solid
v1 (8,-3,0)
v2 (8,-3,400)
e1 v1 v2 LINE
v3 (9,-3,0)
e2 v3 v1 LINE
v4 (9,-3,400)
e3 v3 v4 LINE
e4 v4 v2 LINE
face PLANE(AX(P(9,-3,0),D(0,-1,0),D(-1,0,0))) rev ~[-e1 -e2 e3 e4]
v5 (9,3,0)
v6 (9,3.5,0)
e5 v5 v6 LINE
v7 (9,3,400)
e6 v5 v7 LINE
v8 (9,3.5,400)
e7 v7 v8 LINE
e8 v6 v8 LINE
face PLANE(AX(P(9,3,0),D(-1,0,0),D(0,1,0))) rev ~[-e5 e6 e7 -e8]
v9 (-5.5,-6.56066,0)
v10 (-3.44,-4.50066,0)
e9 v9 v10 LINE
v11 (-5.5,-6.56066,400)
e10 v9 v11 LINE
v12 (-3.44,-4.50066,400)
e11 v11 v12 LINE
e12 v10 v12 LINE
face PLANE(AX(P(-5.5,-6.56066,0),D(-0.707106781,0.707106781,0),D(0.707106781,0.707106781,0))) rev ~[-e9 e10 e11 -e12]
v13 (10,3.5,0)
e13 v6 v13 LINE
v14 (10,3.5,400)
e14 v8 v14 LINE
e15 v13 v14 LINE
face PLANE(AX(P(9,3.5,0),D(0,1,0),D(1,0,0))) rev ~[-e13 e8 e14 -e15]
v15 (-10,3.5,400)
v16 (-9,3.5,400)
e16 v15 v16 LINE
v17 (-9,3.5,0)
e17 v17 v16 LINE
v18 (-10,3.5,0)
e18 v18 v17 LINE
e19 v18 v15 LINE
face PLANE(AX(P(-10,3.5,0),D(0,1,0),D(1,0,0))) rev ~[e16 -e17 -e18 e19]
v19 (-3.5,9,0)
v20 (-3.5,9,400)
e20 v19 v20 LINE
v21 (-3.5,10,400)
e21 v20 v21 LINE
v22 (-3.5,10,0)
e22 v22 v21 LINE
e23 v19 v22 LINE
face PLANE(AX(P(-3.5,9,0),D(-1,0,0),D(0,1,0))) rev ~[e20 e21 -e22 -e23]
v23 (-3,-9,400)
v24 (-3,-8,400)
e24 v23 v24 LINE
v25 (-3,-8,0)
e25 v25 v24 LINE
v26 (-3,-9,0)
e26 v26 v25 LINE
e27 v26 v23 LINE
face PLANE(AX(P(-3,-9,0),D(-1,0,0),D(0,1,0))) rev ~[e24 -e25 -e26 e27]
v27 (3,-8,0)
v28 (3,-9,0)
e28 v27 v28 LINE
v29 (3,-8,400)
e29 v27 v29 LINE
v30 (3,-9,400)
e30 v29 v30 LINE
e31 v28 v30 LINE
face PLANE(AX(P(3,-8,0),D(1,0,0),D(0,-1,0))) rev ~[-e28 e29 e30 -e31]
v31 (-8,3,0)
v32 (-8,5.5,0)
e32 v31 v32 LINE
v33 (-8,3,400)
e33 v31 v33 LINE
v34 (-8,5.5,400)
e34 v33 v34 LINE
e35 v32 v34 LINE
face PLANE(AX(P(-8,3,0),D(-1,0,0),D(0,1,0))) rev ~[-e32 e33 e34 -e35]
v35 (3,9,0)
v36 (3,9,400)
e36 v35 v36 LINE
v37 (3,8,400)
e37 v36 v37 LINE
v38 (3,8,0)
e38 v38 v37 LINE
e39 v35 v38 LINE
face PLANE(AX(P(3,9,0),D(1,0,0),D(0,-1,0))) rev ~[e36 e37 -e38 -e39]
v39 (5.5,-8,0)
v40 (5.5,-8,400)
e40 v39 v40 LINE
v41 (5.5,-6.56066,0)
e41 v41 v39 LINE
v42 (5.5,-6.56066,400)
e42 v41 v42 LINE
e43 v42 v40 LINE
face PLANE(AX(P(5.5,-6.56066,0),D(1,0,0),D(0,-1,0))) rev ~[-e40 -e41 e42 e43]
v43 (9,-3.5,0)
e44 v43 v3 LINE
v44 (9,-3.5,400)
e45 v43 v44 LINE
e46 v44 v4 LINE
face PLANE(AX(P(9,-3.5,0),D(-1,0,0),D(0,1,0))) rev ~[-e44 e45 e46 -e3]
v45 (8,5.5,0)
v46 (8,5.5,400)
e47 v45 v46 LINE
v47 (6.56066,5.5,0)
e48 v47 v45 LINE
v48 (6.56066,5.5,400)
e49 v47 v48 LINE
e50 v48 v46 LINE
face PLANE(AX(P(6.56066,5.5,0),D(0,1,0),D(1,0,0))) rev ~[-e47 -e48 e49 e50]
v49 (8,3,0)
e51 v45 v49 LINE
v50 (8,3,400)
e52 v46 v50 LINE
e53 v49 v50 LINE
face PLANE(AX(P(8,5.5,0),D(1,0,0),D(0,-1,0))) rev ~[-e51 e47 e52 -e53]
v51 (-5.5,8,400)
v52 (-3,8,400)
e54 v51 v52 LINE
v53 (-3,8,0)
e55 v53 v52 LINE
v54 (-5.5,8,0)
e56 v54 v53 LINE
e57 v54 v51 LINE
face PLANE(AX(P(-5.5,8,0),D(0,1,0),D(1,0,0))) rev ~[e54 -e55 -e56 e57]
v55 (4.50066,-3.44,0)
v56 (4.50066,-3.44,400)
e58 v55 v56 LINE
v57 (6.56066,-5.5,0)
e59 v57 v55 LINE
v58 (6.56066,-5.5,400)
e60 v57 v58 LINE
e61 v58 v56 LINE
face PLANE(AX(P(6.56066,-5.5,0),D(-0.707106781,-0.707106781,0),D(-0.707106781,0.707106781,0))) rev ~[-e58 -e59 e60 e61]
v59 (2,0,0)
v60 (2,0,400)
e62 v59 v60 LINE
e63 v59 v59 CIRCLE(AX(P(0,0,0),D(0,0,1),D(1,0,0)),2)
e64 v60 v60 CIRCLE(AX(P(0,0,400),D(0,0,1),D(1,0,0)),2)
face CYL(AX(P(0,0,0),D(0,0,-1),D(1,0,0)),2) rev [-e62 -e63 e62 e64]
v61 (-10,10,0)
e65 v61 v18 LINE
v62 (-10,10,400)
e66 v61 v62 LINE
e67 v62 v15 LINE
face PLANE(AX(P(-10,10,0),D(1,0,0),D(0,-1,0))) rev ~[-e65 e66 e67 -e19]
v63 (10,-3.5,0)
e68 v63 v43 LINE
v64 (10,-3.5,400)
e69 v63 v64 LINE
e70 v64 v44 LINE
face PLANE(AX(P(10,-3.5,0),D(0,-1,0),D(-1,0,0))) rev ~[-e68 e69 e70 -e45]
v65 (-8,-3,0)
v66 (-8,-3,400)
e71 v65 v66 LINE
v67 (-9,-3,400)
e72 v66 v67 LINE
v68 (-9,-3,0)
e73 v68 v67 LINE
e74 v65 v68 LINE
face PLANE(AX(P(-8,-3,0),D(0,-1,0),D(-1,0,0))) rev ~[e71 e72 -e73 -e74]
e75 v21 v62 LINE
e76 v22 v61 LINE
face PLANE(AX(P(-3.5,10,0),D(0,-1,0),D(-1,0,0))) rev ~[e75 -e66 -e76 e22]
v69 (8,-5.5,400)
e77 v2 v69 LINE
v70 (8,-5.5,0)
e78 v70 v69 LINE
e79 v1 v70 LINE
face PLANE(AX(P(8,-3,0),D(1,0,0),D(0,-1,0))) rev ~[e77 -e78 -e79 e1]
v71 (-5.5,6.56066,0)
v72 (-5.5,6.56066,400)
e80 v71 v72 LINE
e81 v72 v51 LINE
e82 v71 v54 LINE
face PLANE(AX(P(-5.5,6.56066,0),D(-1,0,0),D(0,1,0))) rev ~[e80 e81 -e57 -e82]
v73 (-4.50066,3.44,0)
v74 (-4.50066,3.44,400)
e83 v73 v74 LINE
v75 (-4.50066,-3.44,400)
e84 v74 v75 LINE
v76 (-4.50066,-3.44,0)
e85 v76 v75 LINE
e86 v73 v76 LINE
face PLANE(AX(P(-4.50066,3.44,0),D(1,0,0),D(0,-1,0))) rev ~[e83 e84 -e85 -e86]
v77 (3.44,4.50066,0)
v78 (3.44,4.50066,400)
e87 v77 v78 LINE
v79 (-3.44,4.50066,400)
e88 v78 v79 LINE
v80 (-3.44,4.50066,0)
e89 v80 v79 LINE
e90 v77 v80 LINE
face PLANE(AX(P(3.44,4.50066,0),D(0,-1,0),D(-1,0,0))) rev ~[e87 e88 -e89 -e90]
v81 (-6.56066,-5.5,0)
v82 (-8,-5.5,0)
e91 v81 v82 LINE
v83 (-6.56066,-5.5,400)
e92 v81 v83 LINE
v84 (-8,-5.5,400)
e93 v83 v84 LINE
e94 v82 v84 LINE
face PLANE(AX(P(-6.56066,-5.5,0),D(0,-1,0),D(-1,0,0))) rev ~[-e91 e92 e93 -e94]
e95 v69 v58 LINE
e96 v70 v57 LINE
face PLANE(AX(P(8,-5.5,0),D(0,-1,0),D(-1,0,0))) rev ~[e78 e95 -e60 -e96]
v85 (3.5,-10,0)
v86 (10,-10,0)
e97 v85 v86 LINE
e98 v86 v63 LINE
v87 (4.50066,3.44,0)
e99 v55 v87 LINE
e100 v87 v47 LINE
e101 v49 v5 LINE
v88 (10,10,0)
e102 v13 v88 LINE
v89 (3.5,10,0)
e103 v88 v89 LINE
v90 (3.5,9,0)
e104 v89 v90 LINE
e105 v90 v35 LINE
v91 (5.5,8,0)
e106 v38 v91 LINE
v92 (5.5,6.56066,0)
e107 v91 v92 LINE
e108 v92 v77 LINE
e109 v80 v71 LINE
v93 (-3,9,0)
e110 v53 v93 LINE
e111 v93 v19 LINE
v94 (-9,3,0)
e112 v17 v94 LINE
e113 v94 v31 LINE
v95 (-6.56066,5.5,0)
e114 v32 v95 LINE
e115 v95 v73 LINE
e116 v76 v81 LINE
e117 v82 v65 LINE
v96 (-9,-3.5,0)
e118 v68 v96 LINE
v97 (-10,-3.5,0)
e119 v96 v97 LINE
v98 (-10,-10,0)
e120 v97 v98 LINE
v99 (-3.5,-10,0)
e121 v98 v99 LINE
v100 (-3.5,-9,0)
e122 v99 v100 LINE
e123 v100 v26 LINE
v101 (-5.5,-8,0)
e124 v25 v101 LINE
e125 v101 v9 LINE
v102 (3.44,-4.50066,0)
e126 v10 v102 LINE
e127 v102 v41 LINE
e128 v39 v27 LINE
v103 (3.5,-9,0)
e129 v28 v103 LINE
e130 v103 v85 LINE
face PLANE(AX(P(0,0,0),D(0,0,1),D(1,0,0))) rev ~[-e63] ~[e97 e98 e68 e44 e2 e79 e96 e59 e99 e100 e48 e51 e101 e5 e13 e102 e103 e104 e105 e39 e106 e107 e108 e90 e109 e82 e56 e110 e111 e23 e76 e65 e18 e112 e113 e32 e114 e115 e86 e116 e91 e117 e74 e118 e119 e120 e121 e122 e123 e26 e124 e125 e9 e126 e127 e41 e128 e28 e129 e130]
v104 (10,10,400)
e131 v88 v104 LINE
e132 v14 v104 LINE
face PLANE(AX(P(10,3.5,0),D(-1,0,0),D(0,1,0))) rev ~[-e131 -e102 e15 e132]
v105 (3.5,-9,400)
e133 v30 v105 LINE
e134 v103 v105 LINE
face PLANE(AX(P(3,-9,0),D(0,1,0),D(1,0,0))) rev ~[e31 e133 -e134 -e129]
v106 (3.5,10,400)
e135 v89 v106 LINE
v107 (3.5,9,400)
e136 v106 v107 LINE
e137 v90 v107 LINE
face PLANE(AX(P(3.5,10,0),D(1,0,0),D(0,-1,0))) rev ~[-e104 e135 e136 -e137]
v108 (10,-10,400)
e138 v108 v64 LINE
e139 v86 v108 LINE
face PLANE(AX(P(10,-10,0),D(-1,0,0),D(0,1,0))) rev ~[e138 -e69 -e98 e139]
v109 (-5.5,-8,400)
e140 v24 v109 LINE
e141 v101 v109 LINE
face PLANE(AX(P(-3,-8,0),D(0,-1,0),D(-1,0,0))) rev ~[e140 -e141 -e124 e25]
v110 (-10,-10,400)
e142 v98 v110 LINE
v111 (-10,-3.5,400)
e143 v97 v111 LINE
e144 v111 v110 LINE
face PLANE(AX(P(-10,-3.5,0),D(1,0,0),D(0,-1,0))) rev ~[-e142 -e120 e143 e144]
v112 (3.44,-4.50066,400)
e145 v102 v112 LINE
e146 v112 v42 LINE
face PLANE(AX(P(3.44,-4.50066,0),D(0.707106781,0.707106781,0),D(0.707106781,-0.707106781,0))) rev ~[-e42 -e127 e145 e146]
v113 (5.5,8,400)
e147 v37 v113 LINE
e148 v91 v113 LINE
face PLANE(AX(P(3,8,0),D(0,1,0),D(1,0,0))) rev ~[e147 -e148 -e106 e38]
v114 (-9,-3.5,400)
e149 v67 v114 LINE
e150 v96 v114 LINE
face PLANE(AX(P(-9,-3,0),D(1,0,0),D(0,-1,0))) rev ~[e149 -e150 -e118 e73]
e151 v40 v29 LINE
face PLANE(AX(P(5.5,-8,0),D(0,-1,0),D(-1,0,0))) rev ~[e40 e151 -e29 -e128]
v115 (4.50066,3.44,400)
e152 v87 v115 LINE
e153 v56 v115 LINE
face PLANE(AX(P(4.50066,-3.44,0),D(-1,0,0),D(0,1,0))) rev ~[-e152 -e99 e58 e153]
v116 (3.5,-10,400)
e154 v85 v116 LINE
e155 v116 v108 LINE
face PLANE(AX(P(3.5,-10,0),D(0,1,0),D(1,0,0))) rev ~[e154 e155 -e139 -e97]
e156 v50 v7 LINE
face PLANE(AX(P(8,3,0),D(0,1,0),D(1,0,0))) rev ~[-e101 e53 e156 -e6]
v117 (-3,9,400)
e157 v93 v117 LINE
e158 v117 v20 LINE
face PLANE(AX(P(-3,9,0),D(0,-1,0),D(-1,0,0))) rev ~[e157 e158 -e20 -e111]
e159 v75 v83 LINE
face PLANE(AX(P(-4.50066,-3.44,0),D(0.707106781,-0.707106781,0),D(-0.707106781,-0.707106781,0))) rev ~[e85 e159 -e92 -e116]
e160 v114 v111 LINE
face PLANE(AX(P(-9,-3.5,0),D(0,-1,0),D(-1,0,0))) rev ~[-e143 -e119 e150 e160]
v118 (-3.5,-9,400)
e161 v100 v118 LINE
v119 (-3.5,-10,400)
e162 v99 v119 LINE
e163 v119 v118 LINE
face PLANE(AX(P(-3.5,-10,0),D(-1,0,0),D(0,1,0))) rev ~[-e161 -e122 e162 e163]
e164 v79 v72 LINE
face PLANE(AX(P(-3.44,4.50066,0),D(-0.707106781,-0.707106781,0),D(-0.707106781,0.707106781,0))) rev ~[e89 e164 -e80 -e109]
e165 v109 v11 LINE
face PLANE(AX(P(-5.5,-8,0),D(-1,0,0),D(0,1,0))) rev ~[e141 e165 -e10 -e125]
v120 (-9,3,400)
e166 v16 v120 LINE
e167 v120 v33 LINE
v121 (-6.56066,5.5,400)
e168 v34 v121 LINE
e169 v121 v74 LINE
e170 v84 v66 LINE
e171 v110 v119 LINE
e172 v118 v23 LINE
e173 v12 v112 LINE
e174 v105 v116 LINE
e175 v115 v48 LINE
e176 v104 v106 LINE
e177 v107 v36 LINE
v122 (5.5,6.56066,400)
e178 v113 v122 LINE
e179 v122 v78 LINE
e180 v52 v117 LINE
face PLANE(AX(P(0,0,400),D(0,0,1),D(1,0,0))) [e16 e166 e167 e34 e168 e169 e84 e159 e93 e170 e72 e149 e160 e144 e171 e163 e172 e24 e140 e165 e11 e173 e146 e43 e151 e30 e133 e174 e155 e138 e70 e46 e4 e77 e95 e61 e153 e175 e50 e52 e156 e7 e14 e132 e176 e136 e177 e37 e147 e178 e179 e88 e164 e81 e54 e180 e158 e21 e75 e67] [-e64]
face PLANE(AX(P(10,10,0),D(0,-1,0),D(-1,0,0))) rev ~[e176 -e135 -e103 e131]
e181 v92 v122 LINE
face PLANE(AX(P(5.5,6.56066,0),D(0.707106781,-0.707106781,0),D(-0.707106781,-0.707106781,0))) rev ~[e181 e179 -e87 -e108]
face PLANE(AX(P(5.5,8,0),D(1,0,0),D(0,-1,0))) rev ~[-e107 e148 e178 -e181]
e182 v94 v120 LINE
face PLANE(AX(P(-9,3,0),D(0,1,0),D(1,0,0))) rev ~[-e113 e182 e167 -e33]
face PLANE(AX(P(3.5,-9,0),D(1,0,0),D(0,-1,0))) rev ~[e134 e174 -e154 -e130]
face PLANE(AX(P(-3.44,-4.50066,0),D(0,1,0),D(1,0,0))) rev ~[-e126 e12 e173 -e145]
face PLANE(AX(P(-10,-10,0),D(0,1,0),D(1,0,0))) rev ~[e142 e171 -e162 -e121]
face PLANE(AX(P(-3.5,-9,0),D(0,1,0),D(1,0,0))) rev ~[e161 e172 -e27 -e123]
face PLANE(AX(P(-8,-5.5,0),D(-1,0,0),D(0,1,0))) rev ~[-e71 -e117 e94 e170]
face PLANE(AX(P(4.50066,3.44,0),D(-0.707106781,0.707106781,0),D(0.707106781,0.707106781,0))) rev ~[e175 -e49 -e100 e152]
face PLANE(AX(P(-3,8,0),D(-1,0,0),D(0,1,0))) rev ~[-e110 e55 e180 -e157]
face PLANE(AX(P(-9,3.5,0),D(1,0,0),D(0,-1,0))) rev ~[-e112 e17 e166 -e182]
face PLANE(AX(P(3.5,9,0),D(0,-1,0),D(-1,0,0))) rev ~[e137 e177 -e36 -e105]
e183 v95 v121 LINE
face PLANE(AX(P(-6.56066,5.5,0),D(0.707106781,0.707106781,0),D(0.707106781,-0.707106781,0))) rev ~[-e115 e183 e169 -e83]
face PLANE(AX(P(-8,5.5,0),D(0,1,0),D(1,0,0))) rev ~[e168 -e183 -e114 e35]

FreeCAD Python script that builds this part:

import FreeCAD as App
import Part
import Sketcher

V = App.Vector
Q = App.Units.Quantity


def add_polygon(sketch, points):
    """Adds a closed chain of lines whose ends are joined by coincident constraints."""
    first, n = sketch.GeometryCount, len(points)
    for a, b in zip(points, points[1:] + points[:1]):
        sketch.addGeometry(Part.LineSegment(App.Vector(*a, 0), App.Vector(*b, 0)), False)
    for i in range(n):
        sketch.addConstraint(Sketcher.Constraint("Coincident", first + i, 2, first + (i + 1) % n, 1))

doc = App.newDocument("Part")
body = doc.addObject("PartDesign::Body", "Body")

# Sketch on XY plane
sketch1 = body.newObject("Sketcher::SketchObject", "Sketch")
sketch1.AttachmentSupport = (doc.getObject("XY_Plane"), [""])
sketch1.MapMode = "FlatFace"
add_polygon(sketch1, [(-10, -10), (-3.5, -10), (-3.5, -9), (-3, -9), (-3, -8), (-5.5, -8), (-5.5, -6.6), (-3.4, -4.5), (3.4, -4.5), (5.5, -6.6), (5.5, -8), (3, -8), (3, -9), (3.5, -9), (3.5, -10), (10, -10), (10, -3.5), (9, -3.5), (9, -3), (8, -3), (8, -5.5), (6.6, -5.5), (4.5, -3.4), (4.5, 3.4), (6.6, 5.5), (8, 5.5), (8, 3), (9, 3), (9, 3.5), (10, 3.5), (10, 10), (3.5, 10), (3.5, 9), (3, 9), (3, 8), (5.5, 8), (5.5, 6.6), (3.4, 4.5), (-3.4, 4.5), (-5.5, 6.6), (-5.5, 8), (-3, 8), (-3, 9), (-3.5, 9), (-3.5, 10), (-10, 10), (-10, 3.5), (-9, 3.5), (-9, 3), (-8, 3), (-8, 5.5), (-6.6, 5.5), (-4.5, 3.4), (-4.5, -3.4), (-6.6, -5.5), (-8, -5.5), (-8, -3), (-9, -3), (-9, -3.5), (-10, -3.5)])  # lines 0-59
sketch1.addGeometry(Part.Circle(V(0, 0, 0), V(0, 0, 1), 2), False)  # 60
sketch1.addConstraint(Sketcher.Constraint("Horizontal", 0))
sketch1.addConstraint(Sketcher.Constraint("Vertical", 1))
sketch1.addConstraint(Sketcher.Constraint("Horizontal", 2))
sketch1.addConstraint(Sketcher.Constraint("Vertical", 3))
sketch1.addConstraint(Sketcher.Constraint("Horizontal", 4))
sketch1.addConstraint(Sketcher.Constraint("Vertical", 5))
sketch1.addConstraint(Sketcher.Constraint("Horizontal", 7))
sketch1.addConstraint(Sketcher.Constraint("Vertical", 9))
sketch1.addConstraint(Sketcher.Constraint("Horizontal", 10))
sketch1.addConstraint(Sketcher.Constraint("Vertical", 11))
sketch1.addConstraint(Sketcher.Constraint("Horizontal", 12))
sketch1.addConstraint(Sketcher.Constraint("Vertical", 13))
sketch1.addConstraint(Sketcher.Constraint("Horizontal", 14))
sketch1.addConstraint(Sketcher.Constraint("Vertical", 15))
sketch1.addConstraint(Sketcher.Constraint("Horizontal", 16))
sketch1.addConstraint(Sketcher.Constraint("Vertical", 17))
sketch1.addConstraint(Sketcher.Constraint("Horizontal", 18))
sketch1.addConstraint(Sketcher.Constraint("Vertical", 19))
sketch1.addConstraint(Sketcher.Constraint("Horizontal", 20))
sketch1.addConstraint(Sketcher.Constraint("Vertical", 22))
sketch1.addConstraint(Sketcher.Constraint("Horizontal", 24))
sketch1.addConstraint(Sketcher.Constraint("Vertical", 25))
sketch1.addConstraint(Sketcher.Constraint("Horizontal", 26))
sketch1.addConstraint(Sketcher.Constraint("Vertical", 27))
sketch1.addConstraint(Sketcher.Constraint("Horizontal", 28))
sketch1.addConstraint(Sketcher.Constraint("Vertical", 29))
sketch1.addConstraint(Sketcher.Constraint("Horizontal", 30))
sketch1.addConstraint(Sketcher.Constraint("Vertical", 31))
sketch1.addConstraint(Sketcher.Constraint("Horizontal", 32))
sketch1.addConstraint(Sketcher.Constraint("Vertical", 33))
sketch1.addConstraint(Sketcher.Constraint("Horizontal", 34))
sketch1.addConstraint(Sketcher.Constraint("Vertical", 35))
sketch1.addConstraint(Sketcher.Constraint("Horizontal", 37))
sketch1.addConstraint(Sketcher.Constraint("Vertical", 39))
sketch1.addConstraint(Sketcher.Constraint("Horizontal", 40))
sketch1.addConstraint(Sketcher.Constraint("Vertical", 41))
sketch1.addConstraint(Sketcher.Constraint("Horizontal", 42))
sketch1.addConstraint(Sketcher.Constraint("Vertical", 43))
sketch1.addConstraint(Sketcher.Constraint("Horizontal", 44))
sketch1.addConstraint(Sketcher.Constraint("Vertical", 45))
sketch1.addConstraint(Sketcher.Constraint("Horizontal", 46))
sketch1.addConstraint(Sketcher.Constraint("Vertical", 47))
sketch1.addConstraint(Sketcher.Constraint("Horizontal", 48))
sketch1.addConstraint(Sketcher.Constraint("Vertical", 49))
sketch1.addConstraint(Sketcher.Constraint("Horizontal", 50))
sketch1.addConstraint(Sketcher.Constraint("Vertical", 52))
sketch1.addConstraint(Sketcher.Constraint("Horizontal", 54))
sketch1.addConstraint(Sketcher.Constraint("Vertical", 55))
sketch1.addConstraint(Sketcher.Constraint("Horizontal", 56))
sketch1.addConstraint(Sketcher.Constraint("Vertical", 57))
sketch1.addConstraint(Sketcher.Constraint("Horizontal", 58))
sketch1.addConstraint(Sketcher.Constraint("Vertical", 59))
sketch1.addConstraint(Sketcher.Constraint("Coincident", 60, 3, -1, 1))
sketch1.addConstraint(Sketcher.Constraint("Symmetric", 0, 2, 30, 2, -1, 1))
sketch1.addConstraint(Sketcher.Constraint("Symmetric", 2, 2, 32, 2, -1, 1))
sketch1.addConstraint(Sketcher.Constraint("Symmetric", 4, 2, 34, 2, -1, 1))
sketch1.addConstraint(Sketcher.Constraint("Symmetric", 6, 2, 36, 2, -1, 1))
sketch1.addConstraint(Sketcher.Constraint("Symmetric", 8, 2, 38, 2, -1, 1))
sketch1.addConstraint(Sketcher.Constraint("Symmetric", 10, 2, 40, 2, -1, 1))
sketch1.addConstraint(Sketcher.Constraint("Symmetric", 12, 2, 42, 2, -1, 1))
sketch1.addConstraint(Sketcher.Constraint("Symmetric", 14, 2, 44, 2, -1, 1))
sketch1.addConstraint(Sketcher.Constraint("Symmetric", 16, 2, 46, 2, -1, 1))
sketch1.addConstraint(Sketcher.Constraint("Symmetric", 18, 2, 48, 2, -1, 1))
sketch1.addConstraint(Sketcher.Constraint("Symmetric", 20, 2, 50, 2, -1, 1))
sketch1.addConstraint(Sketcher.Constraint("Symmetric", 21, 2, 51, 2, -1, 1))
sketch1.addConstraint(Sketcher.Constraint("Symmetric", 23, 2, 53, 2, -1, 1))
sketch1.addConstraint(Sketcher.Constraint("Symmetric", 25, 2, 55, 2, -1, 1))
sketch1.addConstraint(Sketcher.Constraint("Symmetric", 27, 2, 57, 2, -1, 1))
sketch1.addConstraint(Sketcher.Constraint("Symmetric", 5, 2, 8, 2, -2))
sketch1.addConstraint(Sketcher.Constraint("Symmetric", 3, 2, 10, 2, -2))
sketch1.addConstraint(Sketcher.Constraint("Symmetric", 1, 2, 12, 2, -2))
sketch1.addConstraint(Sketcher.Constraint("Symmetric", 29, 2, 44, 2, -2))
sketch1.addConstraint(Sketcher.Constraint("Symmetric", 27, 2, 46, 2, -2))
sketch1.addConstraint(Sketcher.Constraint("Symmetric", 25, 2, 48, 2, -2))
sketch1.addConstraint(Sketcher.Constraint("Symmetric", 23, 2, 50, 2, -2))
sketch1.addConstraint(Sketcher.Constraint("Perpendicular", 6, 8))
sketch1.addConstraint(Sketcher.Constraint("Parallel", 8, 21))
sketch1.addConstraint(Sketcher.Constraint("Perpendicular", 21, 23))
sketch1.addConstraint(Sketcher.Constraint("Parallel", 23, 36))
sketch1.addConstraint(Sketcher.Constraint("Perpendicular", 36, 38))
sketch1.addConstraint(Sketcher.Constraint("Perpendicular", 51, 53))
sketch1.addConstraint(Sketcher.Constraint("Horizontal", 22, 2, 51, 2))
sketch1.addConstraint(Sketcher.Constraint("Vertical", 45, 2, 58, 2))
sketch1.addConstraint(Sketcher.Constraint("Equal", 16, 18))
sketch1.addConstraint(Sketcher.Constraint("Equal", 58, 1))
sketch1.addConstraint(Sketcher.Constraint("Equal", 1, 3))
sketch1.addConstraint(Sketcher.Constraint("Equal", 54, 5))
sketch1.addConstraint(Sketcher.Constraint("Equal", 44, 15))
sketch1.addConstraint(Sketcher.Constraint("Equal", 42, 17))
sketch1.addConstraint(Sketcher.Constraint("Equal", 40, 19))
sketch1.addConstraint(Sketcher.Constraint("Equal", 37, 22))
sketch1.addConstraint(Sketcher.Constraint("Equal", 8, 21))
sketch1.addConstraint(Sketcher.Constraint("Diameter", 60, Q("4 mm")))
sketch1.addConstraint(Sketcher.Constraint("DistanceX", 16, 2, 16, 1, Q("1 mm")))
sketch1.addConstraint(Sketcher.Constraint("DistanceX", 0, 1, 0, 2, Q("6.5 mm")))
sketch1.addConstraint(Sketcher.Constraint("DistanceX", 2, 1, 2, 2, Q("0.5 mm")))
sketch1.addConstraint(Sketcher.Constraint("DistanceX", 4, 2, 4, 1, Q("2.5 mm")))
sketch1.addConstraint(Sketcher.Constraint("DistanceY", 0, 2, -1, 1, Q("10 mm")))
sketch1.addConstraint(Sketcher.Constraint("DistanceX", 7, 1, 7, 2, Q("6.88 mm")))
sketch1.addConstraint(Sketcher.Constraint("DistanceX", 20, 2, 20, 1, Q("1.43934 mm")))
pad1 = body.newObject("PartDesign::Pad", "Pad")
pad1.Profile = sketch1
pad1.Length = 400

doc.recompute()
